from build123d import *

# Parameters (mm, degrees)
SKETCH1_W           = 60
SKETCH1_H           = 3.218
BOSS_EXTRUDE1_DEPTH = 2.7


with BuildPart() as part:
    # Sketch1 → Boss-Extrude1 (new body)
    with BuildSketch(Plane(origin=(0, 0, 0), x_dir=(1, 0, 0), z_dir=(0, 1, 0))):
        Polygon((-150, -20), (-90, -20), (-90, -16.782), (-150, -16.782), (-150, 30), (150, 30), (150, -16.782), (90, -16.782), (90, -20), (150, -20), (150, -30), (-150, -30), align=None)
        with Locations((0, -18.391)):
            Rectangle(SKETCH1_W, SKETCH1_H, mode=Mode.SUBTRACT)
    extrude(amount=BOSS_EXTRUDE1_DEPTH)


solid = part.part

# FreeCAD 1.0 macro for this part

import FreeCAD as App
import Part
import Sketcher


def add_polygon(sketch, points):
    """Adds a closed chain of lines whose ends are joined by coincident constraints."""
    first, n = sketch.GeometryCount, len(points)
    for a, b in zip(points, points[1:] + points[:1]):
        sketch.addGeometry(Part.LineSegment(App.Vector(*a, 0), App.Vector(*b, 0)), False)
    for i in range(n):
        sketch.addConstraint(Sketcher.Constraint("Coincident", first + i, 2, first + (i + 1) % n, 1))

doc = App.newDocument("Part")
body = doc.addObject("PartDesign::Body", "Body")

# Sketch on XZ plane
sketch1 = doc.addObject("Sketcher::SketchObject", "Sketch")
body.addObject(sketch1)
sketch1.AttachmentSupport = (doc.XZ_Plane, [""])
sketch1.MapMode = "FlatFace"
add_polygon(sketch1, [(-90, 20), (-150, 20), (-150, 30), (150, 30), (150, 20), (90, 20), (90, 16.8), (150, 16.8), (150, -30), (-150, -30), (-150, 16.8), (-90, 16.8)])  # lines 0-11
add_polygon(sketch1, [(-30, 20), (-30, 16.8), (30, 16.8), (30, 20)])  # lines 12-15
sketch1.addConstraint(Sketcher.Constraint("Horizontal", 0))
sketch1.addConstraint(Sketcher.Constraint("Vertical", 1))
sketch1.addConstraint(Sketcher.Constraint("Horizontal", 2))
sketch1.addConstraint(Sketcher.Constraint("Vertical", 3))
sketch1.addConstraint(Sketcher.Constraint("Horizontal", 4))
sketch1.addConstraint(Sketcher.Constraint("Vertical", 5))
sketch1.addConstraint(Sketcher.Constraint("Horizontal", 6))
sketch1.addConstraint(Sketcher.Constraint("Vertical", 7))
sketch1.addConstraint(Sketcher.Constraint("Horizontal", 8))
sketch1.addConstraint(Sketcher.Constraint("Vertical", 9))
sketch1.addConstraint(Sketcher.Constraint("Horizontal", 10))
sketch1.addConstraint(Sketcher.Constraint("Vertical", 11))
sketch1.addConstraint(Sketcher.Constraint("Vertical", 12))
sketch1.addConstraint(Sketcher.Constraint("Horizontal", 13))
sketch1.addConstraint(Sketcher.Constraint("Vertical", 14))
sketch1.addConstraint(Sketcher.Constraint("Horizontal", 15))
sketch1.addConstraint(Sketcher.Constraint("Symmetric", 1, 2, 7, 2, -1, 1))
sketch1.addConstraint(Sketcher.Constraint("Symmetric", 0, 2, 3, 2, -2))
sketch1.addConstraint(Sketcher.Constraint("Symmetric", 6, 2, 9, 2, -2))
sketch1.addConstraint(Sketcher.Constraint("Horizontal", 10, 2, 12, 2))
sketch1.addConstraint(Sketcher.Constraint("Horizontal", 11, 2, 14, 2))
sketch1.addConstraint(Sketcher.Constraint("Equal", 0, 4))
sketch1.addConstraint(Sketcher.Constraint("Equal", 10, 13))
sketch1.addConstraint(Sketcher.Constraint("DistanceX", 0, 2, 0, 1, 60.0))
sketch1.addConstraint(Sketcher.Constraint("DistanceX", 2, 1, 2, 2, 300.0))
sketch1.addConstraint(Sketcher.Constraint("DistanceY", 1, 1, 1, 2, 10.0))
sketch1.addConstraint(Sketcher.Constraint("DistanceY", -1, 1, 0, 2, 20.0))
sketch1.addConstraint(Sketcher.Constraint("DistanceX", 12, 2, -1, 1, 30.0))
sketch1.addConstraint(Sketcher.Constraint("DistanceY", 5, 2, 5, 1, 3.218))
pad1 = doc.addObject("PartDesign::Pad", "Pad")
body.addObject(pad1)
pad1.Profile = sketch1
pad1.Length = 2.7
pad1.Reversed = True

doc.recompute()
